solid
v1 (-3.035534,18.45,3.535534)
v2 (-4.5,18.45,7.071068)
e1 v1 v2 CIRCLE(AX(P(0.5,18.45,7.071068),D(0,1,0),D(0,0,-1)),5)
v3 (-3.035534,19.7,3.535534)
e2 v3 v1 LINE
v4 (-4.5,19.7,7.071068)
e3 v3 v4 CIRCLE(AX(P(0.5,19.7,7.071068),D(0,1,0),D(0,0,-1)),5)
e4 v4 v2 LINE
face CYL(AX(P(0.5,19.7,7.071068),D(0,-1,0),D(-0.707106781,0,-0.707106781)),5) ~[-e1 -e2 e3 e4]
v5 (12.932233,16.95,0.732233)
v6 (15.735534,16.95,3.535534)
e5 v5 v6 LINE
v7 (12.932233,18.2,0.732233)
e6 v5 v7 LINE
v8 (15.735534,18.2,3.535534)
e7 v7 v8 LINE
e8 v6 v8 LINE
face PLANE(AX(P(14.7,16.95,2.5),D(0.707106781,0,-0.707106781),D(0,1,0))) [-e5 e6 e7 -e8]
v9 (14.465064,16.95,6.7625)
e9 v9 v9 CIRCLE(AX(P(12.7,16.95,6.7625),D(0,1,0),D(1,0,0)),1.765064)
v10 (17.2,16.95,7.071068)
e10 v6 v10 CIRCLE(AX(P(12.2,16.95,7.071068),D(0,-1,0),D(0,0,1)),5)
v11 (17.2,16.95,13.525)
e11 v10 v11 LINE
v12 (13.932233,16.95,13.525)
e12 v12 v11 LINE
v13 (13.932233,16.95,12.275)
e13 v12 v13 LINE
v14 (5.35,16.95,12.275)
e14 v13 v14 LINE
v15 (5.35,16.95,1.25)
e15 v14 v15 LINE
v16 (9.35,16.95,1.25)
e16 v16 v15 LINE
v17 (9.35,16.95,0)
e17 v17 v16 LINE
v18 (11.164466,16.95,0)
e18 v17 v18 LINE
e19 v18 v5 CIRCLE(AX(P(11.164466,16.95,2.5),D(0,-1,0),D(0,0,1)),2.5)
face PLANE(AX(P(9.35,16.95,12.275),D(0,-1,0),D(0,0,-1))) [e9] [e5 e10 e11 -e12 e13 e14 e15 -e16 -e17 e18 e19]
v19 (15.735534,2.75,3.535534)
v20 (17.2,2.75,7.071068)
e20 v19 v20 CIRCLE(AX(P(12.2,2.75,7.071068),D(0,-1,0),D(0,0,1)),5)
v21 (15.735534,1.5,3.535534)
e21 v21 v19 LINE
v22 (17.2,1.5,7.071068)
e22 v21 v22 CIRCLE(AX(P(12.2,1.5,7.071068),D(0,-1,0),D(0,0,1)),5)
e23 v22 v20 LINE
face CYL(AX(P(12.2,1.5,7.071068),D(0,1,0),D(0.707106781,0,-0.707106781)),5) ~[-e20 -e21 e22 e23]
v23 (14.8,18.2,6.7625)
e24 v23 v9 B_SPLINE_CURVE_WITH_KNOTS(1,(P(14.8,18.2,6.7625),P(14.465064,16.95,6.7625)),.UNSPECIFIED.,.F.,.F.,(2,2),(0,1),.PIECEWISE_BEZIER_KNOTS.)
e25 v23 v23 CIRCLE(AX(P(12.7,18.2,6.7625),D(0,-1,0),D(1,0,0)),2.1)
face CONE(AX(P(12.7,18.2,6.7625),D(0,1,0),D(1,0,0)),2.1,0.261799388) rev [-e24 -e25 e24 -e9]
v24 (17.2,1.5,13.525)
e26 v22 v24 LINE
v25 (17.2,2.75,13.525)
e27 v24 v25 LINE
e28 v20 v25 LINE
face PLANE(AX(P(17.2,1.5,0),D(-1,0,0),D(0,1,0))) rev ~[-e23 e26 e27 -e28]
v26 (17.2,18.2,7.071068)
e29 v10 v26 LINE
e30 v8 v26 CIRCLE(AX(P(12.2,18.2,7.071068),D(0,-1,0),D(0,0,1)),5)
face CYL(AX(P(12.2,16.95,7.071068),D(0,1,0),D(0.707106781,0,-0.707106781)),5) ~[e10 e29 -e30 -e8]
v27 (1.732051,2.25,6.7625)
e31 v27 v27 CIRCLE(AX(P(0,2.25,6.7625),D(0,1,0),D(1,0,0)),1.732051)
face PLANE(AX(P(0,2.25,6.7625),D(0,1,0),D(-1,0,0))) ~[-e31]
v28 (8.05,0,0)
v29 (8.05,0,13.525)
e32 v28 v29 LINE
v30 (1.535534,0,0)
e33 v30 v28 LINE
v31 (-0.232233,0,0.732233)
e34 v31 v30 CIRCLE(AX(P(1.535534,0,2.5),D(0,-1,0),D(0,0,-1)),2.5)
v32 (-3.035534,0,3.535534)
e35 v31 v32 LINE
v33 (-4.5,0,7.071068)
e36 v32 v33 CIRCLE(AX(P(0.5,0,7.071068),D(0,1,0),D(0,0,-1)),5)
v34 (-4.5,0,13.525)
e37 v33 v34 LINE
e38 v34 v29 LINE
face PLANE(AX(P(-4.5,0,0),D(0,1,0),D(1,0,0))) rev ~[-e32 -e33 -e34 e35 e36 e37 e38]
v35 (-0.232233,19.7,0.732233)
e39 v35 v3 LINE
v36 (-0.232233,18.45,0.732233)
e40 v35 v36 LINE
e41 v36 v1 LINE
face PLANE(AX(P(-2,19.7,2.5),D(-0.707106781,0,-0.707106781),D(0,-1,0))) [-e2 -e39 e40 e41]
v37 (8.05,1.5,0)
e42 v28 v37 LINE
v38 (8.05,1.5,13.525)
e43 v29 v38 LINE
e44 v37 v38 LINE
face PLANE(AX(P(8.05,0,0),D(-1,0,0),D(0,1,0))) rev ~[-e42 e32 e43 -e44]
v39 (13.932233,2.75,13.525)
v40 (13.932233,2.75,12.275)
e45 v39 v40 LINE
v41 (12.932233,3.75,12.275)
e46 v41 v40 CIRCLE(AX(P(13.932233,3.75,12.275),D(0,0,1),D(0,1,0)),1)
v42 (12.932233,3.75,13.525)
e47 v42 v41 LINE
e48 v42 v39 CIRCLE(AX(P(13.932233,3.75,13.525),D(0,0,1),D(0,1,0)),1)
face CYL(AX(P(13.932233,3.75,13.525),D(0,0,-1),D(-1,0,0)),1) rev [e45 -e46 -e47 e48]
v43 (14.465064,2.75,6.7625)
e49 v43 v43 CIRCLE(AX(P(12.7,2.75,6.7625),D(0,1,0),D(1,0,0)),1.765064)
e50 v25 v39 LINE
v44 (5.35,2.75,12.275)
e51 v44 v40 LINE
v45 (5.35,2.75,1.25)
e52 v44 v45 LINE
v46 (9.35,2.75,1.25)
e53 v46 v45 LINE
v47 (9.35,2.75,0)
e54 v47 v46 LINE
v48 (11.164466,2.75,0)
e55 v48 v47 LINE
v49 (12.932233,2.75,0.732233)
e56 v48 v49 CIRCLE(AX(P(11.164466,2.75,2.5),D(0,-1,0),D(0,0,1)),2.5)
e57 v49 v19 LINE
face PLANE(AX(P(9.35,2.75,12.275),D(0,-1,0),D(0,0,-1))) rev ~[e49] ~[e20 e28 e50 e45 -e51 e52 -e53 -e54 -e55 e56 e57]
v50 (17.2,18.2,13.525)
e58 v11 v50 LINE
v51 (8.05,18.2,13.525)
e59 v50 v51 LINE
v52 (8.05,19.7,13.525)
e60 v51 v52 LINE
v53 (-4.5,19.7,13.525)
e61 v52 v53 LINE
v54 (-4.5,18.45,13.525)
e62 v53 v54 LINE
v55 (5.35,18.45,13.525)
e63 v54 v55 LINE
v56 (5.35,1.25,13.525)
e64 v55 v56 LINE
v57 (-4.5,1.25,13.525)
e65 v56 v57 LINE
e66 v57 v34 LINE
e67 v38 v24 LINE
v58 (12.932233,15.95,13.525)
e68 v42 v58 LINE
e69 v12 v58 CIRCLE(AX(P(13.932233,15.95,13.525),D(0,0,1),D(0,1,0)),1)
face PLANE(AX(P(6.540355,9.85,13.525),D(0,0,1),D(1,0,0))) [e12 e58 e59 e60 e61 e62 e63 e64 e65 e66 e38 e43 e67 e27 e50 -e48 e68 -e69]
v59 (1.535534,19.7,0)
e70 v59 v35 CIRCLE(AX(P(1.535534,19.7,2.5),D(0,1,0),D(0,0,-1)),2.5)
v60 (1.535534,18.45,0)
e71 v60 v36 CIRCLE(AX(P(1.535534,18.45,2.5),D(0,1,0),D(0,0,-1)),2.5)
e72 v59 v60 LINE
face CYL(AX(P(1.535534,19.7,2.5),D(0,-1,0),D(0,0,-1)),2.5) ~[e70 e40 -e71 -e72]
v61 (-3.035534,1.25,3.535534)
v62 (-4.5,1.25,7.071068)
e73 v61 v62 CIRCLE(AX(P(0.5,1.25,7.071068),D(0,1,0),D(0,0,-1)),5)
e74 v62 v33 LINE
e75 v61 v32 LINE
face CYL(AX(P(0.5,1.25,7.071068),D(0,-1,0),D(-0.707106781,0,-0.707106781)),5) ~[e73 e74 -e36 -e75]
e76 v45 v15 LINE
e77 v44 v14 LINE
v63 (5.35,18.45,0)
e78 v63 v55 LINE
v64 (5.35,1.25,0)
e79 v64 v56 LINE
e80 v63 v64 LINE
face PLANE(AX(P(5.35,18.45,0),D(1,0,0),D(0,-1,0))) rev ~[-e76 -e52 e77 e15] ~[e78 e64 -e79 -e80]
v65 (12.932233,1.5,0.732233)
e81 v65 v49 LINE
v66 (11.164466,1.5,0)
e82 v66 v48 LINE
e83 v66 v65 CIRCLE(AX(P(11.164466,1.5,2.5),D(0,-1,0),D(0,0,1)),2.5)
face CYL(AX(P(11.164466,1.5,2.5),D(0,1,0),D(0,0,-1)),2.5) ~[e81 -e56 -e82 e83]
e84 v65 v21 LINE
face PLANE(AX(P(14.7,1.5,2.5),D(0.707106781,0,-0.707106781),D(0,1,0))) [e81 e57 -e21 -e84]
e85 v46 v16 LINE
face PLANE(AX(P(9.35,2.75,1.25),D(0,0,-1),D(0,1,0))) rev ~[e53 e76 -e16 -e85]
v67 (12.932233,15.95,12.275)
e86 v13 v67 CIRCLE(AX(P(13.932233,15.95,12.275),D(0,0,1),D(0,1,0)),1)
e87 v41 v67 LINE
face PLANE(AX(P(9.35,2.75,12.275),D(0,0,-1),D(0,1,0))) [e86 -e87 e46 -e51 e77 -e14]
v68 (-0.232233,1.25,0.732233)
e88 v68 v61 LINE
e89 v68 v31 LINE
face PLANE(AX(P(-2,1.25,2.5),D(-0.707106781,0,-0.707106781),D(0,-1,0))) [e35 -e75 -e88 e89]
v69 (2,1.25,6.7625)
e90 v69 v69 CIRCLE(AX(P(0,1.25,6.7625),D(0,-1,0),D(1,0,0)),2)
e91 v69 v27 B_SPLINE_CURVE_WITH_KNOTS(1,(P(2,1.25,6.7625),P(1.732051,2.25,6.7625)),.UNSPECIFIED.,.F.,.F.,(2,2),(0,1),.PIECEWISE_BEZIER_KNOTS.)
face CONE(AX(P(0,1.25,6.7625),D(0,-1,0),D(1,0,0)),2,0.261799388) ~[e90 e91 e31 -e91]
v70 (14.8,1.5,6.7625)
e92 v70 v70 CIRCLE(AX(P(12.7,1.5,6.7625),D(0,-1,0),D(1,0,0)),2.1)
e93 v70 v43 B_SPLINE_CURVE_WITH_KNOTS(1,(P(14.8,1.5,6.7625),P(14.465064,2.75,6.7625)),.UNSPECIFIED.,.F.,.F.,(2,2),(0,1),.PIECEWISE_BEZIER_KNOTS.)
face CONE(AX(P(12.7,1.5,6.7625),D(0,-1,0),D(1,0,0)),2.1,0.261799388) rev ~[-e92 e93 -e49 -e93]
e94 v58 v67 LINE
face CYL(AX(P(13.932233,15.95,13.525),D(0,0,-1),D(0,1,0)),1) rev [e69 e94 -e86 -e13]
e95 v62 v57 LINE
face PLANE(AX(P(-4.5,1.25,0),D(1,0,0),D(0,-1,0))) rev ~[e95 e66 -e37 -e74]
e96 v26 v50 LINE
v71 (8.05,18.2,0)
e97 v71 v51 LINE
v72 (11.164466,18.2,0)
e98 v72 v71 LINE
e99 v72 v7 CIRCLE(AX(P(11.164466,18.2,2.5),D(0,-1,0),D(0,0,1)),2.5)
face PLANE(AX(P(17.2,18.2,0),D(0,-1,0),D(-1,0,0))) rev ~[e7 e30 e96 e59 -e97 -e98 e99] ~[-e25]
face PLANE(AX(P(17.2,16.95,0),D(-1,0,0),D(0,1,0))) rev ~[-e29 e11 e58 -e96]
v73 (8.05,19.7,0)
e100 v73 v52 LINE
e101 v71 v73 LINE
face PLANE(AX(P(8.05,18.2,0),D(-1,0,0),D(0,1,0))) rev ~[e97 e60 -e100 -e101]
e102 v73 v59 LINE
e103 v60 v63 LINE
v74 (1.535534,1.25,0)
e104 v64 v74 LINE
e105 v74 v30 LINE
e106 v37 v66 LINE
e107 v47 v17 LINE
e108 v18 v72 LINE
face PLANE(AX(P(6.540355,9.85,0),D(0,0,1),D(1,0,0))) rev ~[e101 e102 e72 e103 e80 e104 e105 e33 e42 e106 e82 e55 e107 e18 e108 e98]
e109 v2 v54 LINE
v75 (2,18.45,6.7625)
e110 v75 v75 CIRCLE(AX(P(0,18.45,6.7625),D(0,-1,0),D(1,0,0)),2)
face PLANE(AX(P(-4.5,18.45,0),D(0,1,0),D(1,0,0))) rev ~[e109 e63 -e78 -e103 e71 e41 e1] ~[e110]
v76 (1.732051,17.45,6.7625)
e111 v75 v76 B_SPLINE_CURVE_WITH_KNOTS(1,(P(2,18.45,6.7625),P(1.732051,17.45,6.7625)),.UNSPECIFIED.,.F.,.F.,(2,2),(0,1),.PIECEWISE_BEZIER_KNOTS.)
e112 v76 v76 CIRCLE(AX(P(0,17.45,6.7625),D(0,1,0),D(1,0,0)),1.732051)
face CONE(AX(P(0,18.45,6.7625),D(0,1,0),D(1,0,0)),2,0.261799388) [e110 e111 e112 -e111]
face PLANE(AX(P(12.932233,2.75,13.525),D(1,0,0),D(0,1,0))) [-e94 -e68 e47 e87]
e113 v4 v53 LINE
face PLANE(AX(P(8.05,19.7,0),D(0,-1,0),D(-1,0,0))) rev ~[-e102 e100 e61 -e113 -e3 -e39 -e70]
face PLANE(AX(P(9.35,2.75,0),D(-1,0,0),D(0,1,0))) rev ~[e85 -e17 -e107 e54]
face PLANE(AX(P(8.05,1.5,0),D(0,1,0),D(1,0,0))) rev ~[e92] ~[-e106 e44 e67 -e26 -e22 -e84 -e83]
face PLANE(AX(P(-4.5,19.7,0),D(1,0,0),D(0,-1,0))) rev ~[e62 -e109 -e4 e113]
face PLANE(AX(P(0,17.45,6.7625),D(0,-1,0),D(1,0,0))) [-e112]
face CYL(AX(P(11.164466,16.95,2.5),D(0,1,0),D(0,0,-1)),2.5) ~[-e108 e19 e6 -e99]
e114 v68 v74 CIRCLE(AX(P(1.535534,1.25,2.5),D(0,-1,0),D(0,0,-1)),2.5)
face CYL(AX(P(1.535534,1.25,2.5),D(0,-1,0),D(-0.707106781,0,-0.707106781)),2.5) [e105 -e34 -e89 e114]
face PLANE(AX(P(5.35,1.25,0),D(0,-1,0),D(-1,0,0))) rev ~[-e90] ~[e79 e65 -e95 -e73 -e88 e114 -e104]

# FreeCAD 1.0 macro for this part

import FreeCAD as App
import Part
import Sketcher

V = App.Vector


def edges_at(feature, points):
    """Names of the edges that pass closest to the given points."""
    edges = feature.Shape.Edges
    near = lambda p: min(range(len(edges)), key=lambda i: edges[i].distToShape(Part.Vertex(*p))[0])
    return sorted({f"Edge{near(p) + 1}" for p in points})

doc = App.newDocument("Part")
params = doc.addObject("Spreadsheet::Sheet", "Params")
for row, (alias, value) in enumerate([
    ("sketch1_height", "1.5 mm"),
    ("sketch1_height2", "14.2 mm"),
    ("sketch1_width", "9.85 mm"),
    ("sketch1_width2", "12.55 mm"),
    ("sketch1_width3", "9.15 mm"),
    ("pad1_length", "13.525 mm"),
    ("sketch2_width", "14.2 mm"),
    ("pocket1_length", "5 mm"),
    ("sketch3_diameter", "4 mm"),
    ("pad2_length", "1 mm"),
    ("pad2_taper", "-15 deg"),
    ("sketch4_diameter", "4.2 mm"),
    ("pocket2_length", "1.25 mm"),
    ("pocket2_taper", "-15 deg"),
    ("chamfer_size", "5 mm"),
    ("fillet_radius", "5 mm"),
    ("fillet2_radius", "2.5 mm"),
    ("sketch5_height", "14.2 mm"),
    ("pad3_length", "1.25 mm"),
    ("fillet3_radius", "1 mm"),
], start=1):
    params.set(f"A{row}", alias)
    params.set(f"B{row}", "=" + value)
    params.setAlias(f"B{row}", alias)

body = doc.addObject("PartDesign::Body", "Body")

# Sketch on XY plane
sketch1 = body.newObject("Sketcher::SketchObject", "Sketch")
sketch1.AttachmentSupport = (doc.getObject("XY_Plane"), [""])
sketch1.MapMode = "FlatFace"
sketch1.addGeometry(Part.LineSegment(V(5.3, 1.2, 0), V(-4.5, 1.2, 0)), False)
sketch1.addGeometry(Part.LineSegment(V(-4.5, 1.2, 0), V(-4.5, 0, 0)), False)
sketch1.addGeometry(Part.LineSegment(V(-4.5, 0, 0), V(8.1, 0, 0)), False)
sketch1.addGeometry(Part.LineSegment(V(8.1, 0, 0), V(8.1, 1.5, 0)), False)
sketch1.addGeometry(Part.LineSegment(V(8.1, 1.5, 0), V(17.2, 1.5, 0)), False)
sketch1.addGeometry(Part.LineSegment(V(17.2, 1.5, 0), V(17.2, 2.8, 0)), False)
sketch1.addGeometry(Part.LineSegment(V(17.2, 2.8, 0), V(9.3, 2.8, 0)), False)
sketch1.addGeometry(Part.LineSegment(V(9.3, 2.8, 0), V(9.3, 16.9, 0)), False)
sketch1.addGeometry(Part.LineSegment(V(9.3, 16.9, 0), V(17.2, 16.9, 0)), False)
sketch1.addGeometry(Part.LineSegment(V(17.2, 16.9, 0), V(17.2, 18.2, 0)), False)
sketch1.addGeometry(Part.LineSegment(V(17.2, 18.2, 0), V(8.1, 18.2, 0)), False)
sketch1.addGeometry(Part.LineSegment(V(8.1, 18.2, 0), V(8.1, 19.7, 0)), False)
sketch1.addGeometry(Part.LineSegment(V(8.1, 19.7, 0), V(-4.5, 19.7, 0)), False)
sketch1.addGeometry(Part.LineSegment(V(-4.5, 19.7, 0), V(-4.5, 18.4, 0)), False)
sketch1.addGeometry(Part.LineSegment(V(-4.5, 18.4, 0), V(5.3, 18.4, 0)), False)
sketch1.addGeometry(Part.LineSegment(V(5.3, 18.4, 0), V(5.3, 1.2, 0)), False)
sketch1.addConstraint(Sketcher.Constraint("Coincident", 0, 2, 1, 1))
sketch1.addConstraint(Sketcher.Constraint("Coincident", 1, 2, 2, 1))
sketch1.addConstraint(Sketcher.Constraint("Coincident", 2, 2, 3, 1))
sketch1.addConstraint(Sketcher.Constraint("Coincident", 3, 2, 4, 1))
sketch1.addConstraint(Sketcher.Constraint("Coincident", 4, 2, 5, 1))
sketch1.addConstraint(Sketcher.Constraint("Coincident", 5, 2, 6, 1))
sketch1.addConstraint(Sketcher.Constraint("Coincident", 6, 2, 7, 1))
sketch1.addConstraint(Sketcher.Constraint("Coincident", 7, 2, 8, 1))
sketch1.addConstraint(Sketcher.Constraint("Coincident", 8, 2, 9, 1))
sketch1.addConstraint(Sketcher.Constraint("Coincident", 9, 2, 10, 1))
sketch1.addConstraint(Sketcher.Constraint("Coincident", 10, 2, 11, 1))
sketch1.addConstraint(Sketcher.Constraint("Coincident", 11, 2, 12, 1))
sketch1.addConstraint(Sketcher.Constraint("Coincident", 12, 2, 13, 1))
sketch1.addConstraint(Sketcher.Constraint("Coincident", 13, 2, 14, 1))
sketch1.addConstraint(Sketcher.Constraint("Coincident", 14, 2, 15, 1))
sketch1.addConstraint(Sketcher.Constraint("Coincident", 15, 2, 0, 1))
sketch1.addConstraint(Sketcher.Constraint("Horizontal", 0))
sketch1.addConstraint(Sketcher.Constraint("Vertical", 1))
sketch1.addConstraint(Sketcher.Constraint("Horizontal", 2))
sketch1.addConstraint(Sketcher.Constraint("Vertical", 3))
sketch1.addConstraint(Sketcher.Constraint("Horizontal", 4))
sketch1.addConstraint(Sketcher.Constraint("Vertical", 5))
sketch1.addConstraint(Sketcher.Constraint("Horizontal", 6))
sketch1.addConstraint(Sketcher.Constraint("Vertical", 7))
sketch1.addConstraint(Sketcher.Constraint("Horizontal", 8))
sketch1.addConstraint(Sketcher.Constraint("Vertical", 9))
sketch1.addConstraint(Sketcher.Constraint("Horizontal", 10))
sketch1.addConstraint(Sketcher.Constraint("Vertical", 11))
sketch1.addConstraint(Sketcher.Constraint("Horizontal", 12))
sketch1.addConstraint(Sketcher.Constraint("Vertical", 13))
sketch1.addConstraint(Sketcher.Constraint("Horizontal", 14))
sketch1.addConstraint(Sketcher.Constraint("Vertical", 15))
sketch1.addConstraint(Sketcher.Constraint("PointOnObject", 1, 2, -1))
sketch1.addConstraint(Sketcher.Constraint("Vertical", 5, 2, 8, 2))
sketch1.addConstraint(Sketcher.Constraint("Vertical", 3, 2, 10, 2))
sketch1.addConstraint(Sketcher.Constraint("Vertical", 1, 2, 12, 2))
sketch1.addConstraint(Sketcher.Constraint("Equal", 1, 5))
sketch1.addConstraint(Sketcher.Constraint("Equal", 5, 9))
sketch1.addConstraint(Sketcher.Constraint("Equal", 3, 11))
sketch1.addConstraint(Sketcher.Constraint("Equal", 9, 13))
sketch1.addConstraint(Sketcher.Constraint("DistanceY", 3, 1, 3, 2, 1.5))
sketch1.addConstraint(Sketcher.Constraint("DistanceY", 7, 1, 7, 2, 14.2))
sketch1.addConstraint(Sketcher.Constraint("DistanceX", 14, 2, 7, 2, 4.0))
sketch1.addConstraint(Sketcher.Constraint("DistanceX", 0, 2, 0, 1, 9.85))
sketch1.addConstraint(Sketcher.Constraint("DistanceX", 2, 1, 2, 2, 12.55))
sketch1.addConstraint(Sketcher.Constraint("DistanceX", 4, 1, 4, 2, 9.15))
sketch1.addConstraint(Sketcher.Constraint("DistanceY", 1, 2, 1, 1, 1.25))
sketch1.addConstraint(Sketcher.Constraint("DistanceX", 0, 2, -1, 1, 4.5))
sketch1.setExpression("Constraints[40]", "Params.sketch1_height")
sketch1.setExpression("Constraints[41]", "Params.sketch1_height2")
sketch1.setExpression("Constraints[43]", "Params.sketch1_width")
sketch1.setExpression("Constraints[44]", "Params.sketch1_width2")
sketch1.setExpression("Constraints[45]", "Params.sketch1_width3")
pad1 = body.newObject("PartDesign::Pad", "Pad")
pad1.Profile = sketch1
pad1.setExpression("Length", "Params.pad1_length")

# Sketch on YZ plane
sketch2 = body.newObject("Sketcher::SketchObject", "Sketch001")
sketch2.AttachmentSupport = (doc.getObject("YZ_Plane"), [""])
sketch2.MapMode = "FlatFace"
sketch2.AttachmentOffset = App.Placement(V(0, 0, 9.35), App.Rotation())
sketch2.addGeometry(Part.LineSegment(V(17, 12, 0), V(3, 12, 0)), False)
sketch2.addGeometry(Part.LineSegment(V(3, 12, 0), V(3, 1, 0)), False)
sketch2.addGeometry(Part.LineSegment(V(3, 1, 0), V(17, 1, 0)), False)
sketch2.addGeometry(Part.LineSegment(V(17, 1, 0), V(17, 12, 0)), False)
sketch2.addConstraint(Sketcher.Constraint("Coincident", 0, 2, 1, 1))
sketch2.addConstraint(Sketcher.Constraint("Coincident", 1, 2, 2, 1))
sketch2.addConstraint(Sketcher.Constraint("Coincident", 2, 2, 3, 1))
sketch2.addConstraint(Sketcher.Constraint("Coincident", 3, 2, 0, 1))
sketch2.addConstraint(Sketcher.Constraint("Horizontal", 0))
sketch2.addConstraint(Sketcher.Constraint("Vertical", 1))
sketch2.addConstraint(Sketcher.Constraint("Horizontal", 2))
sketch2.addConstraint(Sketcher.Constraint("Vertical", 3))
sketch2.addConstraint(Sketcher.Constraint("DistanceX", 0, 2, 0, 1, 14.2))
sketch2.addConstraint(Sketcher.Constraint("DistanceY", 1, 2, 1, 1, 11.025))
sketch2.addConstraint(Sketcher.Constraint("DistanceX", -1, 1, 0, 2, 2.75))
sketch2.addConstraint(Sketcher.Constraint("DistanceY", -1, 1, 1, 2, 1.25))
sketch2.setExpression("Constraints[8]", "Params.sketch2_width")
pocket1 = body.newObject("PartDesign::Pocket", "Pocket")
pocket1.Profile = sketch2
pocket1.setExpression("Length", "Params.pocket1_length")

# Sketch on XZ plane
sketch3 = body.newObject("Sketcher::SketchObject", "Sketch002")
sketch3.AttachmentSupport = (doc.getObject("XZ_Plane"), [""])
sketch3.MapMode = "FlatFace"
sketch3.AttachmentOffset = App.Placement(V(0, 0, -18.45), App.Rotation())
sketch3.addGeometry(Part.Circle(V(0, 6.8, 0), V(0, 0, 1), 2), False)
sketch3.addConstraint(Sketcher.Constraint("PointOnObject", 0, 3, -2))
sketch3.addConstraint(Sketcher.Constraint("Diameter", 0, 4.0))
sketch3.addConstraint(Sketcher.Constraint("DistanceY", -1, 1, 0, 3, 6.7625))
sketch3.setExpression("Constraints[1]", "Params.sketch3_diameter")
pad2 = body.newObject("PartDesign::Pad", "Pad001")
pad2.Profile = sketch3
pad2.setExpression("Length", "Params.pad2_length")
pad2.setExpression("TaperAngle", "Params.pad2_taper")

# Sketch on XZ plane
sketch4 = body.newObject("Sketcher::SketchObject", "Sketch003")
sketch4.AttachmentSupport = (doc.getObject("XZ_Plane"), [""])
sketch4.MapMode = "FlatFace"
sketch4.AttachmentOffset = App.Placement(V(0, 0, -18.2), App.Rotation())
sketch4.addGeometry(Part.Circle(V(12.7, 6.8, 0), V(0, 0, 1), 2.1), False)
sketch4.addConstraint(Sketcher.Constraint("Diameter", 0, 4.2))
sketch4.addConstraint(Sketcher.Constraint("DistanceX", -1, 1, 0, 3, 12.7))
sketch4.addConstraint(Sketcher.Constraint("DistanceY", -1, 1, 0, 3, 6.7625))
sketch4.setExpression("Constraints[0]", "Params.sketch4_diameter")
pocket2 = body.newObject("PartDesign::Pocket", "Pocket001")
pocket2.Profile = sketch4
pocket2.setExpression("Length", "Params.pocket2_length")
pocket2.Reversed = True
pocket2.setExpression("TaperAngle", "Params.pocket2_taper")
doc.recompute()

datumplane = body.newObject("PartDesign::Plane", "DatumPlane")
datumplane.AttachmentSupport = (doc.getObject("XZ_Plane"), [""])
datumplane.MapMode = "FlatFace"
datumplane.AttachmentOffset = App.Placement(V(0, 0, -9.85), App.Rotation())
mirrored = body.newObject("PartDesign::Mirrored", "Mirrored")
mirrored.Originals = [pad2, pocket2]
mirrored.MirrorPlane = (datumplane, [""])
body.Tip = mirrored
doc.recompute()

chamfer = body.newObject("PartDesign::Chamfer", "Chamfer")
chamfer.Base = (mirrored, edges_at(mirrored, [
    (-4.5, 0.625, 0),
    (-4.5, 19.075, 0),
    (17.2, 17.575, 0),
    (17.2, 2.125, 0),
]))
chamfer.setExpression("Size", "Params.chamfer_size")
doc.recompute()

fillet = body.newObject("PartDesign::Fillet", "Fillet")
fillet.Base = (chamfer, edges_at(chamfer, [
    (17.2, 17.575, 5),
    (17.2, 2.125, 5),
    (-4.5, 0.625, 5),
    (-4.5, 19.075, 5),
]))
fillet.setExpression("Radius", "Params.fillet_radius")
doc.recompute()

fillet2 = body.newObject("PartDesign::Fillet", "Fillet001")
fillet2.Base = (fillet, edges_at(fillet, [
    (0.5, 19.075, 0),
    (0.5, 0.625, 0),
    (12.2, 2.125, 0),
    (12.2, 17.575, 0),
]))
fillet2.setExpression("Radius", "Params.fillet2_radius")

# Sketch on XY plane
sketch5 = body.newObject("Sketcher::SketchObject", "Sketch004")
sketch5.AttachmentSupport = (doc.getObject("XY_Plane"), [""])
sketch5.MapMode = "FlatFace"
sketch5.AttachmentOffset = App.Placement(V(0, 0, 13.525), App.Rotation())
sketch5.addGeometry(Part.LineSegment(V(8.9, 16.9, 0), V(8.9, 2.8, 0)), False)
sketch5.addGeometry(Part.LineSegment(V(8.9, 2.8, 0), V(12.9, 2.8, 0)), False)
sketch5.addGeometry(Part.LineSegment(V(12.9, 2.8, 0), V(12.9, 16.9, 0)), False)
sketch5.addGeometry(Part.LineSegment(V(12.9, 16.9, 0), V(8.9, 16.9, 0)), False)
sketch5.addConstraint(Sketcher.Constraint("Coincident", 0, 2, 1, 1))
sketch5.addConstraint(Sketcher.Constraint("Coincident", 1, 2, 2, 1))
sketch5.addConstraint(Sketcher.Constraint("Coincident", 2, 2, 3, 1))
sketch5.addConstraint(Sketcher.Constraint("Coincident", 3, 2, 0, 1))
sketch5.addConstraint(Sketcher.Constraint("Vertical", 0))
sketch5.addConstraint(Sketcher.Constraint("Horizontal", 1))
sketch5.addConstraint(Sketcher.Constraint("Vertical", 2))
sketch5.addConstraint(Sketcher.Constraint("Horizontal", 3))
sketch5.addConstraint(Sketcher.Constraint("DistanceY", 0, 2, 0, 1, 14.2))
sketch5.addConstraint(Sketcher.Constraint("DistanceY", -1, 1, 0, 2, 2.75))
sketch5.addConstraint(Sketcher.Constraint("DistanceX", 1, 1, 1, 2, 3.997196))
sketch5.addConstraint(Sketcher.Constraint("DistanceX", -1, 1, 0, 2, 8.935037))
sketch5.setExpression("Constraints[8]", "Params.sketch5_height")
pad3 = body.newObject("PartDesign::Pad", "Pad002")
pad3.Profile = sketch5
pad3.setExpression("Length", "Params.pad3_length")
pad3.Reversed = True
doc.recompute()

fillet3 = body.newObject("PartDesign::Fillet", "Fillet002")
fillet3.Base = (pad3, edges_at(pad3, [(12.932, 16.95, 12.9), (12.932, 2.75, 12.9)]))
fillet3.setExpression("Radius", "Params.fillet3_radius")

doc.recompute()
